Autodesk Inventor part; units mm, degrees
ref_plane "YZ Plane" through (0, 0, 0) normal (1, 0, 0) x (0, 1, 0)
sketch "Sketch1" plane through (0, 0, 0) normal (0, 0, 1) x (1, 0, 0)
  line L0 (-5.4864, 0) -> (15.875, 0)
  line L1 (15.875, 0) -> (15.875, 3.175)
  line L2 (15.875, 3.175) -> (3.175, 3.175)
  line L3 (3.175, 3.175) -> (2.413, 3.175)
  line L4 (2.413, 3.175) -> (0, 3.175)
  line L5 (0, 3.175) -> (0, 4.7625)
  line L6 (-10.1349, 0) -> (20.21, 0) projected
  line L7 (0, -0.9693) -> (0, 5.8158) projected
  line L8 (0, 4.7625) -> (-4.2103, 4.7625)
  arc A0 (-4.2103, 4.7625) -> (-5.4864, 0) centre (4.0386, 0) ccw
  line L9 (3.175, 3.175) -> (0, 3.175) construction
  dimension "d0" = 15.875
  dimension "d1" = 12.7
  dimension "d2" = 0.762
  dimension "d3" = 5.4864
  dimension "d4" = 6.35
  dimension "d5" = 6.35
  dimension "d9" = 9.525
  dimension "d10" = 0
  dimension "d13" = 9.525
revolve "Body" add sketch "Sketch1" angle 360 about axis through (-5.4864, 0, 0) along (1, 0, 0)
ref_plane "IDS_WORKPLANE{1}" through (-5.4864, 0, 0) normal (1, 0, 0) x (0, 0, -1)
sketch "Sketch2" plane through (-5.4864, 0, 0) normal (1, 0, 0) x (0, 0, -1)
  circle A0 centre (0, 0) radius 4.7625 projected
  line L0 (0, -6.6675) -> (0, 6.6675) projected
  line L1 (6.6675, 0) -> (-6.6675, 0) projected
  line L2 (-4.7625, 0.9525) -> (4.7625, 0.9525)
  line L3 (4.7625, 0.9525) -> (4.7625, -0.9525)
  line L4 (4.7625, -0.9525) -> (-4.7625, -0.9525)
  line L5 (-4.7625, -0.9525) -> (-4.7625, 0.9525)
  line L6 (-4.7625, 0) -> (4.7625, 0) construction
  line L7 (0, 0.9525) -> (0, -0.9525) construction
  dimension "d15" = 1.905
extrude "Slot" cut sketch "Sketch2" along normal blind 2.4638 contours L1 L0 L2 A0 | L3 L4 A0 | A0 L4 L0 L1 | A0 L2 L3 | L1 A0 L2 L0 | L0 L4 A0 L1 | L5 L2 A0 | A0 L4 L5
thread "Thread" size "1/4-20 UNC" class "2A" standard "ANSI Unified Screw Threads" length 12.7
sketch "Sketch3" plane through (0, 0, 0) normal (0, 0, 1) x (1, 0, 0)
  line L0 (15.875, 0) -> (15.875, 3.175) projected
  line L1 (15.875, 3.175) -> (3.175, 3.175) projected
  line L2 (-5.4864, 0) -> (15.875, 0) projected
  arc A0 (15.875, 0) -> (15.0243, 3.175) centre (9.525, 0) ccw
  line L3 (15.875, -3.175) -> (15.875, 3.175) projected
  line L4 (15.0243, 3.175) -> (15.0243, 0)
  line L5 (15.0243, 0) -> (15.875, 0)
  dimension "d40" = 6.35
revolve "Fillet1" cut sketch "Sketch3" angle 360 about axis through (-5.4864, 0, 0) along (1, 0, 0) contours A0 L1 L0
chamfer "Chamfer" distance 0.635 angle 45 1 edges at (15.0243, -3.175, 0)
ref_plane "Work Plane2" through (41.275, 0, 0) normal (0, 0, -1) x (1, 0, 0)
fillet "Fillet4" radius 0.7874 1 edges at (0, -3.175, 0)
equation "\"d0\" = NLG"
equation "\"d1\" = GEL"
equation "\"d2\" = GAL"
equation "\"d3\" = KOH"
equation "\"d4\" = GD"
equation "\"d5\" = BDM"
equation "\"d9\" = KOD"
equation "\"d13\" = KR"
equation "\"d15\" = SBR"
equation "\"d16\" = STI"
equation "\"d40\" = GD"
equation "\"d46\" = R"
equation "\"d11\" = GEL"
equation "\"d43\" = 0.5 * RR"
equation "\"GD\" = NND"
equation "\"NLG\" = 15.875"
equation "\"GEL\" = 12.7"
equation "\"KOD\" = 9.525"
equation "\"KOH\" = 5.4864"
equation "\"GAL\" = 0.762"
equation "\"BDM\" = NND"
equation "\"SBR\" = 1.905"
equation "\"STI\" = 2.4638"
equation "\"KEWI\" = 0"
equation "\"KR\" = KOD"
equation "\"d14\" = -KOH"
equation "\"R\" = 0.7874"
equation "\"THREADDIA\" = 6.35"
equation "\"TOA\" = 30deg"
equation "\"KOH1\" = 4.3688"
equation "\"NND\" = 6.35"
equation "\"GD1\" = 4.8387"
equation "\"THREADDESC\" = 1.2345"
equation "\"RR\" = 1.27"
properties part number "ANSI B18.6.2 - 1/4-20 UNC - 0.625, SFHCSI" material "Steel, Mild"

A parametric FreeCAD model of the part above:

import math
import FreeCAD as App
import Part
import Sketcher
from FreeCAD import Vector
Q = App.Units.Quantity


def edges_at(feature, points):
    """Names of the edges that pass closest to the given points."""
    edges = feature.Shape.Edges
    near = lambda p: min(range(len(edges)), key=lambda i: edges[i].distToShape(Part.Vertex(*p))[0])
    return sorted({f"Edge{near(p) + 1}" for p in points})

doc = App.newDocument("Part")
body = doc.addObject("PartDesign::Body", "Body")

sketch1 = body.newObject("Sketcher::SketchObject", "Sketch")
sketch1.AttachmentSupport = (doc.getObject("XY_Plane"), [""])
sketch1.MapMode = "FlatFace"
sketch1.addGeometry(Part.ArcOfCircle(Part.Circle(Vector(4, 0, 0), Vector(0, 0, 1), 9.5), math.radians(150), math.radians(180)), False)
sketch1.addGeometry(Part.LineSegment(Vector(-5.5, 0, 0), Vector(15.9, 0, 0)), False)
sketch1.addGeometry(Part.LineSegment(Vector(15.9, 0, 0), Vector(15.9, 3.2, 0)), False)
sketch1.addGeometry(Part.LineSegment(Vector(15.9, 3.2, 0), Vector(0, 3.2, 0)), False)
sketch1.addGeometry(Part.LineSegment(Vector(0, 3.2, 0), Vector(0, 4.8, 0)), False)
sketch1.addGeometry(Part.LineSegment(Vector(0, 4.8, 0), Vector(-4.2, 4.8, 0)), False)
sketch1.addConstraint(Sketcher.Constraint("Coincident", 0, 2, 1, 1))
sketch1.addConstraint(Sketcher.Constraint("Coincident", 1, 2, 2, 1))
sketch1.addConstraint(Sketcher.Constraint("Coincident", 2, 2, 3, 1))
sketch1.addConstraint(Sketcher.Constraint("Coincident", 3, 2, 4, 1))
sketch1.addConstraint(Sketcher.Constraint("Coincident", 4, 2, 5, 1))
sketch1.addConstraint(Sketcher.Constraint("Coincident", 5, 2, 0, 1))
sketch1.addConstraint(Sketcher.Constraint("Horizontal", 1))
sketch1.addConstraint(Sketcher.Constraint("Vertical", 2))
sketch1.addConstraint(Sketcher.Constraint("Horizontal", 3))
sketch1.addConstraint(Sketcher.Constraint("Vertical", 4))
sketch1.addConstraint(Sketcher.Constraint("Horizontal", 5))
sketch1.addConstraint(Sketcher.Constraint("PointOnObject", 0, 3, -1))
sketch1.addConstraint(Sketcher.Constraint("PointOnObject", 0, 2, -1))
sketch1.addConstraint(Sketcher.Constraint("PointOnObject", 3, 2, -2))
sketch1.addConstraint(Sketcher.Constraint("Radius", 0, Q("0.375 in")))
sketch1.addConstraint(Sketcher.Constraint("DistanceX", 3, 2, 3, 1, Q("0.625 in")))
sketch1.addConstraint(Sketcher.Constraint("DistanceX", 0, 2, -1, 1, Q("0.216 in")))
sketch1.addConstraint(Sketcher.Constraint("DistanceY", 2, 1, 2, 2, Q("0.125 in")))
sketch1.addConstraint(Sketcher.Constraint("DistanceY", 4, 1, 4, 2, Q("0.0625 in")))
revolution = body.newObject("PartDesign::Revolution", "Revolution")
revolution.Profile = sketch1
revolution.ReferenceAxis = (sketch1, ["H_Axis"])
revolution.Angle = 360

sketch2 = body.newObject("Sketcher::SketchObject", "Sketch001")
sketch2.AttachmentSupport = (doc.getObject("YZ_Plane"), [""])
sketch2.MapMode = "FlatFace"
sketch2.AttachmentOffset = App.Placement(Vector(0, 0, -0.216 * 25.4), App.Rotation())
sketch2.addGeometry(Part.LineSegment(Vector(1, 4.8, 0), Vector(-1, 4.8, 0)), False)
sketch2.addGeometry(Part.LineSegment(Vector(-1, 4.8, 0), Vector(-1, -4.8, 0)), False)
sketch2.addGeometry(Part.LineSegment(Vector(-1, -4.8, 0), Vector(1, -4.8, 0)), False)
sketch2.addGeometry(Part.LineSegment(Vector(1, -4.8, 0), Vector(1, 4.8, 0)), False)
sketch2.addConstraint(Sketcher.Constraint("Coincident", 0, 2, 1, 1))
sketch2.addConstraint(Sketcher.Constraint("Coincident", 1, 2, 2, 1))
sketch2.addConstraint(Sketcher.Constraint("Coincident", 2, 2, 3, 1))
sketch2.addConstraint(Sketcher.Constraint("Coincident", 3, 2, 0, 1))
sketch2.addConstraint(Sketcher.Constraint("Horizontal", 0))
sketch2.addConstraint(Sketcher.Constraint("Vertical", 1))
sketch2.addConstraint(Sketcher.Constraint("Horizontal", 2))
sketch2.addConstraint(Sketcher.Constraint("Vertical", 3))
sketch2.addConstraint(Sketcher.Constraint("Symmetric", 0, 2, 2, 2, -1, 1))
sketch2.addConstraint(Sketcher.Constraint("DistanceX", 0, 2, 0, 1, Q("0.075 in")))
sketch2.addConstraint(Sketcher.Constraint("DistanceY", 1, 2, 1, 1, Q("0.375 in")))
pocket1 = body.newObject("PartDesign::Pocket", "Pocket")
pocket1.Profile = sketch2
pocket1.Length = Q("0.097 in")
pocket1.Reversed = True

sketch3 = body.newObject("Sketcher::SketchObject", "Sketch002")
sketch3.AttachmentSupport = (doc.getObject("XY_Plane"), [""])
sketch3.MapMode = "FlatFace"
sketch3.addGeometry(Part.ArcOfCircle(Part.Circle(Vector(9.5, 0, 0), Vector(0, 0, 1), 6.3), math.radians(0), math.radians(30)), False)
sketch3.addGeometry(Part.LineSegment(Vector(15.9, 0, 0), Vector(15.9, 3.2, 0)), False)
sketch3.addGeometry(Part.LineSegment(Vector(15.9, 3.2, 0), Vector(15, 3.2, 0)), False)
sketch3.addConstraint(Sketcher.Constraint("Tangent", 0, 1, 1, 1))
sketch3.addConstraint(Sketcher.Constraint("Coincident", 1, 2, 2, 1))
sketch3.addConstraint(Sketcher.Constraint("Coincident", 2, 2, 0, 2))
sketch3.addConstraint(Sketcher.Constraint("Vertical", 1))
sketch3.addConstraint(Sketcher.Constraint("Horizontal", 2))
sketch3.addConstraint(Sketcher.Constraint("PointOnObject", 0, 3, -1))
sketch3.addConstraint(Sketcher.Constraint("Radius", 0, Q("0.25 in")))
sketch3.addConstraint(Sketcher.Constraint("DistanceY", 1, 1, 1, 2, Q("0.125 in")))
sketch3.addConstraint(Sketcher.Constraint("DistanceX", -1, 1, 0, 3, Q("0.375 in")))
groove = body.newObject("PartDesign::Groove", "Groove")
groove.Profile = sketch3
groove.ReferenceAxis = (sketch3, ["H_Axis"])
groove.Angle = 360
doc.recompute()

chamfer = body.newObject("PartDesign::Chamfer", "Chamfer")
chamfer.Base = (groove, edges_at(groove, [(15.024, -3.175, 0)]))
chamfer.Size = Q("0.025 in")
doc.recompute()

fillet = body.newObject("PartDesign::Fillet", "Fillet")
fillet.Base = (chamfer, edges_at(chamfer, [(0, -3.175, 0)]))
fillet.Radius = Q("0.031 in")

doc.recompute()
